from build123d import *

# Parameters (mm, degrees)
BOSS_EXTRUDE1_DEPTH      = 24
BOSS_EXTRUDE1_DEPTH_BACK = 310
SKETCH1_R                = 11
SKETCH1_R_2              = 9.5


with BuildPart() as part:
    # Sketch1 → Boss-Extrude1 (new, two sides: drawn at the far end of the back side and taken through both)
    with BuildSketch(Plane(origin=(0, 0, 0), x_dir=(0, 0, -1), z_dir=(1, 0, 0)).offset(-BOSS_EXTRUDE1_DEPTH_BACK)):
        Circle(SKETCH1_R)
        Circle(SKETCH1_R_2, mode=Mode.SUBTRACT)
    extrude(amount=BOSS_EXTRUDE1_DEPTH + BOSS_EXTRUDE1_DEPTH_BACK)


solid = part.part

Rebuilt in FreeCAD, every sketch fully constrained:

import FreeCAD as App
import Part
import Sketcher

V = App.Vector

doc = App.newDocument("Part")
body = doc.addObject("PartDesign::Body", "Body")

sketch1 = doc.addObject("Sketcher::SketchObject", "Sketch")
body.addObject(sketch1)
sketch1.AttachmentSupport = (doc.YZ_Plane, [""])
sketch1.MapMode = "FlatFace"
sketch1.addGeometry(Part.Circle(V(0, 0, 0), V(0, 0, 1), 11), False)
sketch1.addGeometry(Part.Circle(V(0, 0, 0), V(0, 0, 1), 10), False)
sketch1.addConstraint(Sketcher.Constraint("Coincident", 0, 3, -1, 1))
sketch1.addConstraint(Sketcher.Constraint("Coincident", 1, 3, -1, 1))
sketch1.addConstraint(Sketcher.Constraint("Diameter", 0, 22.0))
sketch1.addConstraint(Sketcher.Constraint("Diameter", 1, 19.0))
pad1 = doc.addObject("PartDesign::Pad", "Pad")
body.addObject(pad1)
pad1.Profile = sketch1
pad1.Type = "TwoLengths"
pad1.Length = 24
pad1.Length2 = 310

doc.recompute()
